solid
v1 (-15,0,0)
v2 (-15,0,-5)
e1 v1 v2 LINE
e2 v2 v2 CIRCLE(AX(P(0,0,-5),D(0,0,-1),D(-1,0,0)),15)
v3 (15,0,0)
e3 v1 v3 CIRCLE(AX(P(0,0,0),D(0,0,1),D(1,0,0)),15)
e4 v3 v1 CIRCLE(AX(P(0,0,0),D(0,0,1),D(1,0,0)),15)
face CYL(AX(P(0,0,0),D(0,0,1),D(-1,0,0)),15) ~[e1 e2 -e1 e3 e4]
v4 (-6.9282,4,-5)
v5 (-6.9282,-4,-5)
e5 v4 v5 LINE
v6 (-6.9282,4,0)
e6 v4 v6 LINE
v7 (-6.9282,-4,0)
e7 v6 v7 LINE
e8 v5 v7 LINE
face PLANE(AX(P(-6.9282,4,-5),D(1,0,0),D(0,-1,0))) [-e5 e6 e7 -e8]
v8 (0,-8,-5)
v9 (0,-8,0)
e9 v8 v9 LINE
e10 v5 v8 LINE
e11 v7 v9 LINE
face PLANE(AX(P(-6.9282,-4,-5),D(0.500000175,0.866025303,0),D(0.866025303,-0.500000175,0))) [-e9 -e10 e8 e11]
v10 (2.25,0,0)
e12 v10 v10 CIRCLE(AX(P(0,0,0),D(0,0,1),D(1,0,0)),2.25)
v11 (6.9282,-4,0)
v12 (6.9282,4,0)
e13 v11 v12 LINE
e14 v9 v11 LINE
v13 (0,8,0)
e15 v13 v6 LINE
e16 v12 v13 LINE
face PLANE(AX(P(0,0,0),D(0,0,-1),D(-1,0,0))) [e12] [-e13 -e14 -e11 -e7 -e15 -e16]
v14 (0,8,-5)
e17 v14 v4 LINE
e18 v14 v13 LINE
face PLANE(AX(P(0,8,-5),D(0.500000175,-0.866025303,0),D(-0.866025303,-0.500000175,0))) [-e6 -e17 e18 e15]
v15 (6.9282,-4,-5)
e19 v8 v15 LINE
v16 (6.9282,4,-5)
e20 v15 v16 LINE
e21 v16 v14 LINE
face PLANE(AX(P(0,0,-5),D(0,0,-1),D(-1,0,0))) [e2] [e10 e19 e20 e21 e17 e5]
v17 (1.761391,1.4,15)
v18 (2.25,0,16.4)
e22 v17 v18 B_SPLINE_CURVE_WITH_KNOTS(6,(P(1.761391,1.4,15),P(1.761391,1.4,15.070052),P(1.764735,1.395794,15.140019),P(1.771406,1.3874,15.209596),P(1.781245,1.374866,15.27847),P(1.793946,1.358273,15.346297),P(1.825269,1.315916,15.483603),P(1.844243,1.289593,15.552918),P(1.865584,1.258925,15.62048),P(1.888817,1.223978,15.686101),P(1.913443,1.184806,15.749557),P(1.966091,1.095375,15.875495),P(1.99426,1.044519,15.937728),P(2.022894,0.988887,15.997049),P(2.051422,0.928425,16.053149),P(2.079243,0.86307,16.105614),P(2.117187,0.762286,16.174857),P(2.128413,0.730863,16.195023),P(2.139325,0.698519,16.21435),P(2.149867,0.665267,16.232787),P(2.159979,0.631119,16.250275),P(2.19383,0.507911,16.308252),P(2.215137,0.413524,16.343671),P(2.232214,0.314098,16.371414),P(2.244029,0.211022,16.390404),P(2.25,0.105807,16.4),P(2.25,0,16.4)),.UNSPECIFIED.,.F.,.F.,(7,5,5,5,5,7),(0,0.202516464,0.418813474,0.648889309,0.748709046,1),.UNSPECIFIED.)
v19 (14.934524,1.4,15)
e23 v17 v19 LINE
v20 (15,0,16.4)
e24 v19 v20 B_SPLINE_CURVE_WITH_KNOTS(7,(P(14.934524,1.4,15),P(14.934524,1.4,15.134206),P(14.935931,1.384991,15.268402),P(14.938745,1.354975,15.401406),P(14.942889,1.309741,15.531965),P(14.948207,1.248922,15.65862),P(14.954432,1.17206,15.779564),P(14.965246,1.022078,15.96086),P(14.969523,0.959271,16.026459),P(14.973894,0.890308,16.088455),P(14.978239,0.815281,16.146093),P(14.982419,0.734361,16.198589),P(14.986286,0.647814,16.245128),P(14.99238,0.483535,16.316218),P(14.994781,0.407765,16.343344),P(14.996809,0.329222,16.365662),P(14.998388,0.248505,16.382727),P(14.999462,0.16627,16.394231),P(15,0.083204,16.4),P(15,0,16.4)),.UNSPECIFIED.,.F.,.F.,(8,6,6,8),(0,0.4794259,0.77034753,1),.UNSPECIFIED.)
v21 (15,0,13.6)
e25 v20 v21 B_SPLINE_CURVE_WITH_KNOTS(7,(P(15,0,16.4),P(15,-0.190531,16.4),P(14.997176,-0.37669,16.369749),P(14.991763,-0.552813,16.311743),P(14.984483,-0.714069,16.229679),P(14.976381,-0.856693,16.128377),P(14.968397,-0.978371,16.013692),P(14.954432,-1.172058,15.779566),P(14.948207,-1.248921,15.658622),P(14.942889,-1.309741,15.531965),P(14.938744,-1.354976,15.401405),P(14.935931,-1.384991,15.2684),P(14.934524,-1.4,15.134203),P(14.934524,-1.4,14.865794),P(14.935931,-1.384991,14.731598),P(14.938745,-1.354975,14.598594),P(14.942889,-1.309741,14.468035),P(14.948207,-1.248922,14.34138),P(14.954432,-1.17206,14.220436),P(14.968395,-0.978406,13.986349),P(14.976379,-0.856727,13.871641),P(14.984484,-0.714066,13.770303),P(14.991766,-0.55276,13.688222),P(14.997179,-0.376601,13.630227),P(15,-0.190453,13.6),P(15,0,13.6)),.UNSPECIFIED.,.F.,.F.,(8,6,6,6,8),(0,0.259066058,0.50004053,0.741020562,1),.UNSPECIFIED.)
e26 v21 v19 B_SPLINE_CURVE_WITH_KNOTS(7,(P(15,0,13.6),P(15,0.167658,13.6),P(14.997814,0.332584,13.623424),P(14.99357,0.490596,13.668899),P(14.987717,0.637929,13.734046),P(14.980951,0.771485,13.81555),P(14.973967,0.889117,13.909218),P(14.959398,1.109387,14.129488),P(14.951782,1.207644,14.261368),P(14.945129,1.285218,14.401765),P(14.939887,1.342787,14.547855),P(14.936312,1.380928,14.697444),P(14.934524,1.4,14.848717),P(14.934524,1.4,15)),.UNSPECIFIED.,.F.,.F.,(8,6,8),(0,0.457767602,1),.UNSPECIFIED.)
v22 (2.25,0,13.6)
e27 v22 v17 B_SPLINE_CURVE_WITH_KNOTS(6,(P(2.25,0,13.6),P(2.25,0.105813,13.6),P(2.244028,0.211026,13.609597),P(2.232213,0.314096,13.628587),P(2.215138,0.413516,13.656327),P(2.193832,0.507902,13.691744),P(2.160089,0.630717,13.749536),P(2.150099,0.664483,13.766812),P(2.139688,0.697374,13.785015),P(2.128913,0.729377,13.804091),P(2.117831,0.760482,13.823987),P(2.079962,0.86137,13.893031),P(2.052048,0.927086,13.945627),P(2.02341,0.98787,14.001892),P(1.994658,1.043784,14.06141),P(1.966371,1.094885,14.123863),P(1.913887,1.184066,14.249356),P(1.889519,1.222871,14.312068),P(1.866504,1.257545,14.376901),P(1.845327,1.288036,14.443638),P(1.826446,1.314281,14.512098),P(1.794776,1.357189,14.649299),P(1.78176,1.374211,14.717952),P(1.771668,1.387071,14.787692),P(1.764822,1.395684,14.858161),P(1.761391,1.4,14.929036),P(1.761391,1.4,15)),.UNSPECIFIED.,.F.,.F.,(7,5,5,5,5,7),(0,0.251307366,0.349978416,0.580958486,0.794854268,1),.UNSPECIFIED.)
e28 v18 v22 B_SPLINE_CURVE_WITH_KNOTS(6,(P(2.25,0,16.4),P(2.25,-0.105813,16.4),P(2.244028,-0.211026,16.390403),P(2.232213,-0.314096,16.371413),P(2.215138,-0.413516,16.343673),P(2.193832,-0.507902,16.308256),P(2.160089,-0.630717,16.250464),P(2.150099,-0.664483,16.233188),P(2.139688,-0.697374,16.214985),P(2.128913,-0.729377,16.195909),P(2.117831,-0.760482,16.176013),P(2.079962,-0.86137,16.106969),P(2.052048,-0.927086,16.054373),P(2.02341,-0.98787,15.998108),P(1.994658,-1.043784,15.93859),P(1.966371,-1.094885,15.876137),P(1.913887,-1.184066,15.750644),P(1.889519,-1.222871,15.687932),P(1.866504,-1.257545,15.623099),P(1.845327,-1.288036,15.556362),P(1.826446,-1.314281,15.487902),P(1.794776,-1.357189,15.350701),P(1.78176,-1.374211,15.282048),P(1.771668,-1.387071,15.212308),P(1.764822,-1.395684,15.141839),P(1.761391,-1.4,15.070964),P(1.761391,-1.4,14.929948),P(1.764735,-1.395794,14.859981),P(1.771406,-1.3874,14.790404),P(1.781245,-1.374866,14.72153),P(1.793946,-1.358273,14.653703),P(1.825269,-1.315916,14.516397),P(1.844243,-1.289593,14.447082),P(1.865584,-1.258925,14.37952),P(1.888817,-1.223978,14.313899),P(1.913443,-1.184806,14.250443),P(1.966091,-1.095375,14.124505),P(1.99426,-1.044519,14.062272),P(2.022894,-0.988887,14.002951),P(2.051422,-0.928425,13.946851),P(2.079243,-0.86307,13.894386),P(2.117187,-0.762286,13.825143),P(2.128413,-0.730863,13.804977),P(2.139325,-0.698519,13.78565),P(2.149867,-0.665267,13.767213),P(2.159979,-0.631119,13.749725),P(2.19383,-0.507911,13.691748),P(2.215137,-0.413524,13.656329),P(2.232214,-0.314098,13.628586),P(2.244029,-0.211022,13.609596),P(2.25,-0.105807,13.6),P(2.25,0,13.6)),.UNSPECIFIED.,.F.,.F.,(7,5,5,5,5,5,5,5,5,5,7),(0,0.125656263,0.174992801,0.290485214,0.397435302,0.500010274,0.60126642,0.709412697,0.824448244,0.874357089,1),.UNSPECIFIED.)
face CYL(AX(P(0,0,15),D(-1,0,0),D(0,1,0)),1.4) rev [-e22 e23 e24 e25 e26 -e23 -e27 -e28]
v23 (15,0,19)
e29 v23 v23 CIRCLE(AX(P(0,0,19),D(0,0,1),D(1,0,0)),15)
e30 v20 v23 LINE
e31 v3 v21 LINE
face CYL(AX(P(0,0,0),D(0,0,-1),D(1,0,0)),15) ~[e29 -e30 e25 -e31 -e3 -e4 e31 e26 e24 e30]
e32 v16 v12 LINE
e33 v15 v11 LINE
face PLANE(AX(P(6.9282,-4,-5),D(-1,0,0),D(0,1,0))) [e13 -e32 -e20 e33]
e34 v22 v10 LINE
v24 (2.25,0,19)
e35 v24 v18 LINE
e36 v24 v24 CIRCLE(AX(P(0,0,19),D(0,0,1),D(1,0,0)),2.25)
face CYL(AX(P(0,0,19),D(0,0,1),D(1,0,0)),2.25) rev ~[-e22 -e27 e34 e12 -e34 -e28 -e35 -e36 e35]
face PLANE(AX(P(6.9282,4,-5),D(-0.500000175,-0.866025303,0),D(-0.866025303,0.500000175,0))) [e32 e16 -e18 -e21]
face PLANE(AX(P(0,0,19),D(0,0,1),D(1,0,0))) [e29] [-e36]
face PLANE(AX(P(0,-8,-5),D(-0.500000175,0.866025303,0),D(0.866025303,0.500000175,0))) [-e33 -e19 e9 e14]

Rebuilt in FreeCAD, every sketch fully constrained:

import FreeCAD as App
import Part
import Sketcher
Q = App.Units.Quantity


def add_polygon(sketch, points):
    """Adds a closed chain of lines whose ends are joined by coincident constraints."""
    first, n = sketch.GeometryCount, len(points)
    for a, b in zip(points, points[1:] + points[:1]):
        sketch.addGeometry(Part.LineSegment(App.Vector(*a, 0), App.Vector(*b, 0)), False)
    for i in range(n):
        sketch.addConstraint(Sketcher.Constraint("Coincident", first + i, 2, first + (i + 1) % n, 1))

doc = App.newDocument("Part")
body = doc.addObject("PartDesign::Body", "Body")

# Sketch on XY plane
sketch1 = body.newObject("Sketcher::SketchObject", "Sketch")
sketch1.AttachmentSupport = (doc.getObject("XY_Plane"), [""])
sketch1.MapMode = "FlatFace"
sketch1.addGeometry(Part.Circle(App.Vector(0, 0, 0), App.Vector(0, 0, 1), 15), False)
sketch1.addConstraint([
    Sketcher.Constraint("Coincident", 0, 3, -1, 1),
    Sketcher.Constraint("Diameter", 0, Q("30 mm")),
])
pad1 = body.newObject("PartDesign::Pad", "Pad")
pad1.Profile = sketch1
pad1.Length = 19

# Sketch on XY plane
sketch2 = body.newObject("Sketcher::SketchObject", "Sketch001")
sketch2.AttachmentSupport = (doc.getObject("XY_Plane"), [""])
sketch2.MapMode = "FlatFace"
sketch2.AttachmentOffset = App.Placement(App.Vector(0, 0, 19), App.Rotation())
sketch2.addGeometry(Part.Circle(App.Vector(0, 0, 0), App.Vector(0, 0, 1), 2.25), False)
sketch2.addConstraint([
    Sketcher.Constraint("Coincident", 0, 3, -1, 1),
    Sketcher.Constraint("Diameter", 0, Q("4.5 mm")),
])
pocket1 = body.newObject("PartDesign::Pocket", "Pocket")
pocket1.Profile = sketch2
pocket1.Length = 19

# Sketch on XY plane
sketch3 = body.newObject("Sketcher::SketchObject", "Sketch002")
sketch3.AttachmentSupport = (doc.getObject("XY_Plane"), [""])
sketch3.MapMode = "FlatFace"
sketch3.addGeometry(Part.Circle(App.Vector(0, 0, 0), App.Vector(0, 0, 1), 15), False)
sketch3.addConstraint([
    Sketcher.Constraint("Coincident", 0, 3, -1, 1),
    Sketcher.Constraint("Diameter", 0, Q("30 mm")),
])
pad2 = body.newObject("PartDesign::Pad", "Pad001")
pad2.Profile = sketch3
pad2.Length = 5
pad2.Reversed = True

# Sketch on XY plane
sketch4 = body.newObject("Sketcher::SketchObject", "Sketch003")
sketch4.AttachmentSupport = (doc.getObject("XY_Plane"), [""])
sketch4.MapMode = "FlatFace"
sketch4.AttachmentOffset = App.Placement(App.Vector(0, 0, -5), App.Rotation())
add_polygon(sketch4, [(6.9282, -4), (0, -8), (-6.9282, -4), (-6.9282, 4), (0, 8), (6.9282, 4)])  # lines 0-5
sketch4.addConstraint([
    Sketcher.Constraint("Vertical", 2),
    Sketcher.Constraint("Vertical", 5),
    Sketcher.Constraint("Symmetric", 0, 2, 3, 2, -1, 1),
    Sketcher.Constraint("Symmetric", 1, 2, 4, 2, -1, 1),
    Sketcher.Constraint("PointOnObject", 0, 2, -2),
    Sketcher.Constraint("Parallel", 0, 3),
    Sketcher.Constraint("Horizontal", 2, 2, 4, 2),
    Sketcher.Constraint("DistanceY", 0, 2, 3, 2, Q("16 mm")),
    Sketcher.Constraint("DistanceY", 2, 1, 2, 2, Q("8 mm")),
    Sketcher.Constraint("Angle", 0, Q("-150 deg")),
])
pocket2 = body.newObject("PartDesign::Pocket", "Pocket001")
pocket2.Profile = sketch4
pocket2.Length = 5
pocket2.Reversed = True

# Sketch on YZ plane
sketch5 = body.newObject("Sketcher::SketchObject", "Sketch004")
sketch5.AttachmentSupport = (doc.getObject("YZ_Plane"), [""])
sketch5.MapMode = "FlatFace"
sketch5.addGeometry(Part.Circle(App.Vector(0, 15, 0), App.Vector(0, 0, 1), 1.4), False)
sketch5.addConstraint([
    Sketcher.Constraint("PointOnObject", 0, 3, -2),
    Sketcher.Constraint("Diameter", 0, Q("2.8 mm")),
    Sketcher.Constraint("DistanceY", -1, 1, 0, 3, Q("15 mm")),
])
pocket3 = body.newObject("PartDesign::Pocket", "Pocket002")
pocket3.Profile = sketch5
pocket3.Type = "ThroughAll"
pocket3.Reversed = True

doc.recompute()
